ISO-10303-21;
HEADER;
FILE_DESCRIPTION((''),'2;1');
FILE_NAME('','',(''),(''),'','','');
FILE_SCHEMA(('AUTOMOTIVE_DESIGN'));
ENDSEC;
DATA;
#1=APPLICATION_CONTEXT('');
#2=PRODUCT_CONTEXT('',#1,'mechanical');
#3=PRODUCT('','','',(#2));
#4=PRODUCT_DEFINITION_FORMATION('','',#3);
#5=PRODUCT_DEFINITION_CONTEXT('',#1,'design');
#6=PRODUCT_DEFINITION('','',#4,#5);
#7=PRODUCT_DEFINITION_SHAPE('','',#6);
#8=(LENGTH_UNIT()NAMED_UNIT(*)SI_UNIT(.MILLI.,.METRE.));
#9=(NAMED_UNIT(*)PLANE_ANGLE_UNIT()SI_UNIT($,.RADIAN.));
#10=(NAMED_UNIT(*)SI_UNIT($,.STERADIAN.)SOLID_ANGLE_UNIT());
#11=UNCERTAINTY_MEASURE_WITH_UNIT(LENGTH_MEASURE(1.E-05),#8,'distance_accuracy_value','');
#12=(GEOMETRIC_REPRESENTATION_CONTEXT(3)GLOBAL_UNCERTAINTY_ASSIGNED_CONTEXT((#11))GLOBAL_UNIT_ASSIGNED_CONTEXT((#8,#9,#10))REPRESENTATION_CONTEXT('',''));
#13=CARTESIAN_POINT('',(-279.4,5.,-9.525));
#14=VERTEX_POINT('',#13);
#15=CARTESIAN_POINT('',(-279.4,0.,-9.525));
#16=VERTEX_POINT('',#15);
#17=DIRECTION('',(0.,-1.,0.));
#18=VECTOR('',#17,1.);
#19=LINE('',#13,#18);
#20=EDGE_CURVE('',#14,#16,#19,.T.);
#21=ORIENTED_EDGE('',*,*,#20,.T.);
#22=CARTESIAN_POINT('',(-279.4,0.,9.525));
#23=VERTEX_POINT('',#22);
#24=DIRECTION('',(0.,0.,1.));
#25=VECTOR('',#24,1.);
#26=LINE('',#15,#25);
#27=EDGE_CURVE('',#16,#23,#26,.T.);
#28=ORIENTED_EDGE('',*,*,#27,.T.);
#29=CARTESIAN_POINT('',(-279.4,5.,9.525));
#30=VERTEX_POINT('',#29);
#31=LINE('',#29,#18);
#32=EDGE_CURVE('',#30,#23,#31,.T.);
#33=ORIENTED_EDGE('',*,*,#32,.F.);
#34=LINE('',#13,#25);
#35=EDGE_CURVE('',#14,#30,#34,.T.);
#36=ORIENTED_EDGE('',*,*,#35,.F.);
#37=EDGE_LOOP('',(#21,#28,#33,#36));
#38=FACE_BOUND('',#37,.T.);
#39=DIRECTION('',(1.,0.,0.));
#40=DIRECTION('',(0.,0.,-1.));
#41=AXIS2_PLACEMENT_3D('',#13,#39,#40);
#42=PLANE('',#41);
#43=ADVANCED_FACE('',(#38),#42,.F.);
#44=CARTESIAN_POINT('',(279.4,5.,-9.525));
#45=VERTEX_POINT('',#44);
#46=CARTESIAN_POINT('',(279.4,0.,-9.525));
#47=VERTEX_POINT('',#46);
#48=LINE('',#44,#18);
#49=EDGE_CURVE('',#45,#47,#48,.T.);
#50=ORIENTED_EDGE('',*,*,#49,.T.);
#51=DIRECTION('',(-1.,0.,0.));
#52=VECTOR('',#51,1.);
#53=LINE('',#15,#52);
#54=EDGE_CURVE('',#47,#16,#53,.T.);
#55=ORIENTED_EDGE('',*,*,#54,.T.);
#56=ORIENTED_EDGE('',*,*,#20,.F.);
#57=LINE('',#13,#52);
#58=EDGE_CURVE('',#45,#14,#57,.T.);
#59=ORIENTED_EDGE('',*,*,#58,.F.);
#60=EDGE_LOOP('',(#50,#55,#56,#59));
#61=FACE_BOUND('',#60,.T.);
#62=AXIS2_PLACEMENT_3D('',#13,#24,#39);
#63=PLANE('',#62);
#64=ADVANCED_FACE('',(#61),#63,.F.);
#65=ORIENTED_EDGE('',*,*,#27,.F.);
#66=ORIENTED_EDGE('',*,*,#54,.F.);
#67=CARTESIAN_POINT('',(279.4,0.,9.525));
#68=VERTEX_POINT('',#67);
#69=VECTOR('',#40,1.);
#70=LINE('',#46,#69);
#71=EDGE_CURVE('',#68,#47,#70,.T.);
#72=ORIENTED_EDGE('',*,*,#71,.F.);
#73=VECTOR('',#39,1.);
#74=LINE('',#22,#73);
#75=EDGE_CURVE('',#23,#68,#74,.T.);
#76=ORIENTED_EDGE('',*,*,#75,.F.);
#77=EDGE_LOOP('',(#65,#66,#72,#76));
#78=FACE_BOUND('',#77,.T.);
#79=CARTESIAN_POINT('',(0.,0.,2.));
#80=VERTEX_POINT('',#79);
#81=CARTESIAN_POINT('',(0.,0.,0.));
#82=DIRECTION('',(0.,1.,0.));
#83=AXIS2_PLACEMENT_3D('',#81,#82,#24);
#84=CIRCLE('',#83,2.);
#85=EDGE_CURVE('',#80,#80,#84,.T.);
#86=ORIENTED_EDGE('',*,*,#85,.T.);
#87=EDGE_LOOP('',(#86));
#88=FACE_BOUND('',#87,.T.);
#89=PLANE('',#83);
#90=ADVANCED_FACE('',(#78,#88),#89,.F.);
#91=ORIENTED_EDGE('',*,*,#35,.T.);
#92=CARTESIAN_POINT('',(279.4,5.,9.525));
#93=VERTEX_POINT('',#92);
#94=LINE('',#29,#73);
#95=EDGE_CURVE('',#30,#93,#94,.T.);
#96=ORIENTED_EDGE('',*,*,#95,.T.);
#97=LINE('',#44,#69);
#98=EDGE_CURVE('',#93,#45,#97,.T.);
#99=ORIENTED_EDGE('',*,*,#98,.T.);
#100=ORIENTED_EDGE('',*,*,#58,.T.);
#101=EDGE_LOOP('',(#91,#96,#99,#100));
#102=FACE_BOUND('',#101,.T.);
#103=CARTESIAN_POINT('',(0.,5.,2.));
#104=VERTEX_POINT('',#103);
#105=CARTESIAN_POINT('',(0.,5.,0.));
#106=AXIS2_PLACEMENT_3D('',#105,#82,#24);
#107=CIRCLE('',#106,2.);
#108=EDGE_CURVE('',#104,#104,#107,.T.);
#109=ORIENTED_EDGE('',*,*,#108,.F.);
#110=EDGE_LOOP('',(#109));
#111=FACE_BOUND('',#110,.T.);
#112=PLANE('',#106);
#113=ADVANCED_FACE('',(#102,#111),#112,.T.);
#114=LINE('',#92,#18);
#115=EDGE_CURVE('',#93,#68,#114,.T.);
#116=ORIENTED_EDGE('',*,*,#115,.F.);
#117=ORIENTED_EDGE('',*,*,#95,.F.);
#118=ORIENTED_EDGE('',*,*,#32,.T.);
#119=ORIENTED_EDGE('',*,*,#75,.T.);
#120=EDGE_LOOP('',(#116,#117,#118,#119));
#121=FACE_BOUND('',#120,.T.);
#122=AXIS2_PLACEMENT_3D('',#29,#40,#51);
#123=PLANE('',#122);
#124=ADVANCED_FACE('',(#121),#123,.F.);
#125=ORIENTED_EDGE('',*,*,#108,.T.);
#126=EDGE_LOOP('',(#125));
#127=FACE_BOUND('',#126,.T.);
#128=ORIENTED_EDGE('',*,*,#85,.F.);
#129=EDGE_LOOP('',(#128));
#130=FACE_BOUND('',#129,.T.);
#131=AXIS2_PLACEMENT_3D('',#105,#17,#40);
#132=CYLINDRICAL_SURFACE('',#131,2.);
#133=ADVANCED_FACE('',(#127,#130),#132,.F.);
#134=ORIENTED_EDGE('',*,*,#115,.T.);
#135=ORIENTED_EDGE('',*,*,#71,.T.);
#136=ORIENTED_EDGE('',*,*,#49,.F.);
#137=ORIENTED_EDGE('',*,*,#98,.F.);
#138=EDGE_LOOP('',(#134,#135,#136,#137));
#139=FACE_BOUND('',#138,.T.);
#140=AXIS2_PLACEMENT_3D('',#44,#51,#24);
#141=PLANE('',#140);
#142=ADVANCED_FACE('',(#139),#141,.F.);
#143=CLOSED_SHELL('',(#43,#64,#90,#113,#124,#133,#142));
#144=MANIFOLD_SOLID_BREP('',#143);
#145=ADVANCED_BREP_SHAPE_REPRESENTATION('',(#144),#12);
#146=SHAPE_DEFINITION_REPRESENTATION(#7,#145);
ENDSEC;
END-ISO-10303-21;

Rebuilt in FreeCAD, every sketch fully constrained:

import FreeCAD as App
import Part
import Sketcher
from FreeCAD import Vector
Q = App.Units.Quantity

doc = App.newDocument("Part")
params = doc.addObject("Spreadsheet::Sheet", "Params")
for row, (alias, value) in enumerate([
    ("sketch1_diameter", "4 mm"),
    ("sketch1_width", "558.8 mm"),
    ("sketch1_height", "19.05 mm"),
    ("pad1_length", "5 mm"),
], start=1):
    params.set(f"A{row}", alias)
    params.set(f"B{row}", "=" + value)
    params.setAlias(f"B{row}", alias)

body = doc.addObject("PartDesign::Body", "Body")

sketch1 = doc.addObject("Sketcher::SketchObject", "Sketch")
body.addObject(sketch1)
sketch1.AttachmentSupport = (doc.XZ_Plane, [""])
sketch1.MapMode = "FlatFace"
sketch1.addGeometry(Part.LineSegment(Vector(-279.4, -9.525, 0), Vector(-279.4, 9.525, 0)), False)
sketch1.addGeometry(Part.LineSegment(Vector(-279.4, 9.525, 0), Vector(279.4, 9.525, 0)), False)
sketch1.addGeometry(Part.LineSegment(Vector(279.4, 9.525, 0), Vector(279.4, -9.525, 0)), False)
sketch1.addGeometry(Part.LineSegment(Vector(279.4, -9.525, 0), Vector(-279.4, -9.525, 0)), False)
sketch1.addGeometry(Part.Circle(Vector(0, 0, 0), Vector(0, 0, 1), 2), False)
sketch1.addConstraint(Sketcher.Constraint("Coincident", 0, 2, 1, 1))
sketch1.addConstraint(Sketcher.Constraint("Coincident", 1, 2, 2, 1))
sketch1.addConstraint(Sketcher.Constraint("Coincident", 2, 2, 3, 1))
sketch1.addConstraint(Sketcher.Constraint("Coincident", 3, 2, 0, 1))
sketch1.addConstraint(Sketcher.Constraint("Vertical", 0))
sketch1.addConstraint(Sketcher.Constraint("Horizontal", 1))
sketch1.addConstraint(Sketcher.Constraint("Vertical", 2))
sketch1.addConstraint(Sketcher.Constraint("Horizontal", 3))
sketch1.addConstraint(Sketcher.Constraint("Coincident", 4, 3, -1, 1))
sketch1.addConstraint(Sketcher.Constraint("Symmetric", 0, 2, 2, 2, -1, 1))
sketch1.addConstraint(Sketcher.Constraint("Diameter", 4, Q("4 mm")))
sketch1.addConstraint(Sketcher.Constraint("DistanceX", 1, 1, 1, 2, Q("558.8 mm")))
sketch1.addConstraint(Sketcher.Constraint("DistanceY", 0, 1, 0, 2, Q("19.05 mm")))
sketch1.setExpression("Constraints[10]", "Params.sketch1_diameter")
sketch1.setExpression("Constraints[11]", "Params.sketch1_width")
sketch1.setExpression("Constraints[12]", "Params.sketch1_height")
pad1 = doc.addObject("PartDesign::Pad", "Pad")
body.addObject(pad1)
pad1.Profile = sketch1
pad1.setExpression("Length", "Params.pad1_length")
pad1.Reversed = True

doc.recompute()
